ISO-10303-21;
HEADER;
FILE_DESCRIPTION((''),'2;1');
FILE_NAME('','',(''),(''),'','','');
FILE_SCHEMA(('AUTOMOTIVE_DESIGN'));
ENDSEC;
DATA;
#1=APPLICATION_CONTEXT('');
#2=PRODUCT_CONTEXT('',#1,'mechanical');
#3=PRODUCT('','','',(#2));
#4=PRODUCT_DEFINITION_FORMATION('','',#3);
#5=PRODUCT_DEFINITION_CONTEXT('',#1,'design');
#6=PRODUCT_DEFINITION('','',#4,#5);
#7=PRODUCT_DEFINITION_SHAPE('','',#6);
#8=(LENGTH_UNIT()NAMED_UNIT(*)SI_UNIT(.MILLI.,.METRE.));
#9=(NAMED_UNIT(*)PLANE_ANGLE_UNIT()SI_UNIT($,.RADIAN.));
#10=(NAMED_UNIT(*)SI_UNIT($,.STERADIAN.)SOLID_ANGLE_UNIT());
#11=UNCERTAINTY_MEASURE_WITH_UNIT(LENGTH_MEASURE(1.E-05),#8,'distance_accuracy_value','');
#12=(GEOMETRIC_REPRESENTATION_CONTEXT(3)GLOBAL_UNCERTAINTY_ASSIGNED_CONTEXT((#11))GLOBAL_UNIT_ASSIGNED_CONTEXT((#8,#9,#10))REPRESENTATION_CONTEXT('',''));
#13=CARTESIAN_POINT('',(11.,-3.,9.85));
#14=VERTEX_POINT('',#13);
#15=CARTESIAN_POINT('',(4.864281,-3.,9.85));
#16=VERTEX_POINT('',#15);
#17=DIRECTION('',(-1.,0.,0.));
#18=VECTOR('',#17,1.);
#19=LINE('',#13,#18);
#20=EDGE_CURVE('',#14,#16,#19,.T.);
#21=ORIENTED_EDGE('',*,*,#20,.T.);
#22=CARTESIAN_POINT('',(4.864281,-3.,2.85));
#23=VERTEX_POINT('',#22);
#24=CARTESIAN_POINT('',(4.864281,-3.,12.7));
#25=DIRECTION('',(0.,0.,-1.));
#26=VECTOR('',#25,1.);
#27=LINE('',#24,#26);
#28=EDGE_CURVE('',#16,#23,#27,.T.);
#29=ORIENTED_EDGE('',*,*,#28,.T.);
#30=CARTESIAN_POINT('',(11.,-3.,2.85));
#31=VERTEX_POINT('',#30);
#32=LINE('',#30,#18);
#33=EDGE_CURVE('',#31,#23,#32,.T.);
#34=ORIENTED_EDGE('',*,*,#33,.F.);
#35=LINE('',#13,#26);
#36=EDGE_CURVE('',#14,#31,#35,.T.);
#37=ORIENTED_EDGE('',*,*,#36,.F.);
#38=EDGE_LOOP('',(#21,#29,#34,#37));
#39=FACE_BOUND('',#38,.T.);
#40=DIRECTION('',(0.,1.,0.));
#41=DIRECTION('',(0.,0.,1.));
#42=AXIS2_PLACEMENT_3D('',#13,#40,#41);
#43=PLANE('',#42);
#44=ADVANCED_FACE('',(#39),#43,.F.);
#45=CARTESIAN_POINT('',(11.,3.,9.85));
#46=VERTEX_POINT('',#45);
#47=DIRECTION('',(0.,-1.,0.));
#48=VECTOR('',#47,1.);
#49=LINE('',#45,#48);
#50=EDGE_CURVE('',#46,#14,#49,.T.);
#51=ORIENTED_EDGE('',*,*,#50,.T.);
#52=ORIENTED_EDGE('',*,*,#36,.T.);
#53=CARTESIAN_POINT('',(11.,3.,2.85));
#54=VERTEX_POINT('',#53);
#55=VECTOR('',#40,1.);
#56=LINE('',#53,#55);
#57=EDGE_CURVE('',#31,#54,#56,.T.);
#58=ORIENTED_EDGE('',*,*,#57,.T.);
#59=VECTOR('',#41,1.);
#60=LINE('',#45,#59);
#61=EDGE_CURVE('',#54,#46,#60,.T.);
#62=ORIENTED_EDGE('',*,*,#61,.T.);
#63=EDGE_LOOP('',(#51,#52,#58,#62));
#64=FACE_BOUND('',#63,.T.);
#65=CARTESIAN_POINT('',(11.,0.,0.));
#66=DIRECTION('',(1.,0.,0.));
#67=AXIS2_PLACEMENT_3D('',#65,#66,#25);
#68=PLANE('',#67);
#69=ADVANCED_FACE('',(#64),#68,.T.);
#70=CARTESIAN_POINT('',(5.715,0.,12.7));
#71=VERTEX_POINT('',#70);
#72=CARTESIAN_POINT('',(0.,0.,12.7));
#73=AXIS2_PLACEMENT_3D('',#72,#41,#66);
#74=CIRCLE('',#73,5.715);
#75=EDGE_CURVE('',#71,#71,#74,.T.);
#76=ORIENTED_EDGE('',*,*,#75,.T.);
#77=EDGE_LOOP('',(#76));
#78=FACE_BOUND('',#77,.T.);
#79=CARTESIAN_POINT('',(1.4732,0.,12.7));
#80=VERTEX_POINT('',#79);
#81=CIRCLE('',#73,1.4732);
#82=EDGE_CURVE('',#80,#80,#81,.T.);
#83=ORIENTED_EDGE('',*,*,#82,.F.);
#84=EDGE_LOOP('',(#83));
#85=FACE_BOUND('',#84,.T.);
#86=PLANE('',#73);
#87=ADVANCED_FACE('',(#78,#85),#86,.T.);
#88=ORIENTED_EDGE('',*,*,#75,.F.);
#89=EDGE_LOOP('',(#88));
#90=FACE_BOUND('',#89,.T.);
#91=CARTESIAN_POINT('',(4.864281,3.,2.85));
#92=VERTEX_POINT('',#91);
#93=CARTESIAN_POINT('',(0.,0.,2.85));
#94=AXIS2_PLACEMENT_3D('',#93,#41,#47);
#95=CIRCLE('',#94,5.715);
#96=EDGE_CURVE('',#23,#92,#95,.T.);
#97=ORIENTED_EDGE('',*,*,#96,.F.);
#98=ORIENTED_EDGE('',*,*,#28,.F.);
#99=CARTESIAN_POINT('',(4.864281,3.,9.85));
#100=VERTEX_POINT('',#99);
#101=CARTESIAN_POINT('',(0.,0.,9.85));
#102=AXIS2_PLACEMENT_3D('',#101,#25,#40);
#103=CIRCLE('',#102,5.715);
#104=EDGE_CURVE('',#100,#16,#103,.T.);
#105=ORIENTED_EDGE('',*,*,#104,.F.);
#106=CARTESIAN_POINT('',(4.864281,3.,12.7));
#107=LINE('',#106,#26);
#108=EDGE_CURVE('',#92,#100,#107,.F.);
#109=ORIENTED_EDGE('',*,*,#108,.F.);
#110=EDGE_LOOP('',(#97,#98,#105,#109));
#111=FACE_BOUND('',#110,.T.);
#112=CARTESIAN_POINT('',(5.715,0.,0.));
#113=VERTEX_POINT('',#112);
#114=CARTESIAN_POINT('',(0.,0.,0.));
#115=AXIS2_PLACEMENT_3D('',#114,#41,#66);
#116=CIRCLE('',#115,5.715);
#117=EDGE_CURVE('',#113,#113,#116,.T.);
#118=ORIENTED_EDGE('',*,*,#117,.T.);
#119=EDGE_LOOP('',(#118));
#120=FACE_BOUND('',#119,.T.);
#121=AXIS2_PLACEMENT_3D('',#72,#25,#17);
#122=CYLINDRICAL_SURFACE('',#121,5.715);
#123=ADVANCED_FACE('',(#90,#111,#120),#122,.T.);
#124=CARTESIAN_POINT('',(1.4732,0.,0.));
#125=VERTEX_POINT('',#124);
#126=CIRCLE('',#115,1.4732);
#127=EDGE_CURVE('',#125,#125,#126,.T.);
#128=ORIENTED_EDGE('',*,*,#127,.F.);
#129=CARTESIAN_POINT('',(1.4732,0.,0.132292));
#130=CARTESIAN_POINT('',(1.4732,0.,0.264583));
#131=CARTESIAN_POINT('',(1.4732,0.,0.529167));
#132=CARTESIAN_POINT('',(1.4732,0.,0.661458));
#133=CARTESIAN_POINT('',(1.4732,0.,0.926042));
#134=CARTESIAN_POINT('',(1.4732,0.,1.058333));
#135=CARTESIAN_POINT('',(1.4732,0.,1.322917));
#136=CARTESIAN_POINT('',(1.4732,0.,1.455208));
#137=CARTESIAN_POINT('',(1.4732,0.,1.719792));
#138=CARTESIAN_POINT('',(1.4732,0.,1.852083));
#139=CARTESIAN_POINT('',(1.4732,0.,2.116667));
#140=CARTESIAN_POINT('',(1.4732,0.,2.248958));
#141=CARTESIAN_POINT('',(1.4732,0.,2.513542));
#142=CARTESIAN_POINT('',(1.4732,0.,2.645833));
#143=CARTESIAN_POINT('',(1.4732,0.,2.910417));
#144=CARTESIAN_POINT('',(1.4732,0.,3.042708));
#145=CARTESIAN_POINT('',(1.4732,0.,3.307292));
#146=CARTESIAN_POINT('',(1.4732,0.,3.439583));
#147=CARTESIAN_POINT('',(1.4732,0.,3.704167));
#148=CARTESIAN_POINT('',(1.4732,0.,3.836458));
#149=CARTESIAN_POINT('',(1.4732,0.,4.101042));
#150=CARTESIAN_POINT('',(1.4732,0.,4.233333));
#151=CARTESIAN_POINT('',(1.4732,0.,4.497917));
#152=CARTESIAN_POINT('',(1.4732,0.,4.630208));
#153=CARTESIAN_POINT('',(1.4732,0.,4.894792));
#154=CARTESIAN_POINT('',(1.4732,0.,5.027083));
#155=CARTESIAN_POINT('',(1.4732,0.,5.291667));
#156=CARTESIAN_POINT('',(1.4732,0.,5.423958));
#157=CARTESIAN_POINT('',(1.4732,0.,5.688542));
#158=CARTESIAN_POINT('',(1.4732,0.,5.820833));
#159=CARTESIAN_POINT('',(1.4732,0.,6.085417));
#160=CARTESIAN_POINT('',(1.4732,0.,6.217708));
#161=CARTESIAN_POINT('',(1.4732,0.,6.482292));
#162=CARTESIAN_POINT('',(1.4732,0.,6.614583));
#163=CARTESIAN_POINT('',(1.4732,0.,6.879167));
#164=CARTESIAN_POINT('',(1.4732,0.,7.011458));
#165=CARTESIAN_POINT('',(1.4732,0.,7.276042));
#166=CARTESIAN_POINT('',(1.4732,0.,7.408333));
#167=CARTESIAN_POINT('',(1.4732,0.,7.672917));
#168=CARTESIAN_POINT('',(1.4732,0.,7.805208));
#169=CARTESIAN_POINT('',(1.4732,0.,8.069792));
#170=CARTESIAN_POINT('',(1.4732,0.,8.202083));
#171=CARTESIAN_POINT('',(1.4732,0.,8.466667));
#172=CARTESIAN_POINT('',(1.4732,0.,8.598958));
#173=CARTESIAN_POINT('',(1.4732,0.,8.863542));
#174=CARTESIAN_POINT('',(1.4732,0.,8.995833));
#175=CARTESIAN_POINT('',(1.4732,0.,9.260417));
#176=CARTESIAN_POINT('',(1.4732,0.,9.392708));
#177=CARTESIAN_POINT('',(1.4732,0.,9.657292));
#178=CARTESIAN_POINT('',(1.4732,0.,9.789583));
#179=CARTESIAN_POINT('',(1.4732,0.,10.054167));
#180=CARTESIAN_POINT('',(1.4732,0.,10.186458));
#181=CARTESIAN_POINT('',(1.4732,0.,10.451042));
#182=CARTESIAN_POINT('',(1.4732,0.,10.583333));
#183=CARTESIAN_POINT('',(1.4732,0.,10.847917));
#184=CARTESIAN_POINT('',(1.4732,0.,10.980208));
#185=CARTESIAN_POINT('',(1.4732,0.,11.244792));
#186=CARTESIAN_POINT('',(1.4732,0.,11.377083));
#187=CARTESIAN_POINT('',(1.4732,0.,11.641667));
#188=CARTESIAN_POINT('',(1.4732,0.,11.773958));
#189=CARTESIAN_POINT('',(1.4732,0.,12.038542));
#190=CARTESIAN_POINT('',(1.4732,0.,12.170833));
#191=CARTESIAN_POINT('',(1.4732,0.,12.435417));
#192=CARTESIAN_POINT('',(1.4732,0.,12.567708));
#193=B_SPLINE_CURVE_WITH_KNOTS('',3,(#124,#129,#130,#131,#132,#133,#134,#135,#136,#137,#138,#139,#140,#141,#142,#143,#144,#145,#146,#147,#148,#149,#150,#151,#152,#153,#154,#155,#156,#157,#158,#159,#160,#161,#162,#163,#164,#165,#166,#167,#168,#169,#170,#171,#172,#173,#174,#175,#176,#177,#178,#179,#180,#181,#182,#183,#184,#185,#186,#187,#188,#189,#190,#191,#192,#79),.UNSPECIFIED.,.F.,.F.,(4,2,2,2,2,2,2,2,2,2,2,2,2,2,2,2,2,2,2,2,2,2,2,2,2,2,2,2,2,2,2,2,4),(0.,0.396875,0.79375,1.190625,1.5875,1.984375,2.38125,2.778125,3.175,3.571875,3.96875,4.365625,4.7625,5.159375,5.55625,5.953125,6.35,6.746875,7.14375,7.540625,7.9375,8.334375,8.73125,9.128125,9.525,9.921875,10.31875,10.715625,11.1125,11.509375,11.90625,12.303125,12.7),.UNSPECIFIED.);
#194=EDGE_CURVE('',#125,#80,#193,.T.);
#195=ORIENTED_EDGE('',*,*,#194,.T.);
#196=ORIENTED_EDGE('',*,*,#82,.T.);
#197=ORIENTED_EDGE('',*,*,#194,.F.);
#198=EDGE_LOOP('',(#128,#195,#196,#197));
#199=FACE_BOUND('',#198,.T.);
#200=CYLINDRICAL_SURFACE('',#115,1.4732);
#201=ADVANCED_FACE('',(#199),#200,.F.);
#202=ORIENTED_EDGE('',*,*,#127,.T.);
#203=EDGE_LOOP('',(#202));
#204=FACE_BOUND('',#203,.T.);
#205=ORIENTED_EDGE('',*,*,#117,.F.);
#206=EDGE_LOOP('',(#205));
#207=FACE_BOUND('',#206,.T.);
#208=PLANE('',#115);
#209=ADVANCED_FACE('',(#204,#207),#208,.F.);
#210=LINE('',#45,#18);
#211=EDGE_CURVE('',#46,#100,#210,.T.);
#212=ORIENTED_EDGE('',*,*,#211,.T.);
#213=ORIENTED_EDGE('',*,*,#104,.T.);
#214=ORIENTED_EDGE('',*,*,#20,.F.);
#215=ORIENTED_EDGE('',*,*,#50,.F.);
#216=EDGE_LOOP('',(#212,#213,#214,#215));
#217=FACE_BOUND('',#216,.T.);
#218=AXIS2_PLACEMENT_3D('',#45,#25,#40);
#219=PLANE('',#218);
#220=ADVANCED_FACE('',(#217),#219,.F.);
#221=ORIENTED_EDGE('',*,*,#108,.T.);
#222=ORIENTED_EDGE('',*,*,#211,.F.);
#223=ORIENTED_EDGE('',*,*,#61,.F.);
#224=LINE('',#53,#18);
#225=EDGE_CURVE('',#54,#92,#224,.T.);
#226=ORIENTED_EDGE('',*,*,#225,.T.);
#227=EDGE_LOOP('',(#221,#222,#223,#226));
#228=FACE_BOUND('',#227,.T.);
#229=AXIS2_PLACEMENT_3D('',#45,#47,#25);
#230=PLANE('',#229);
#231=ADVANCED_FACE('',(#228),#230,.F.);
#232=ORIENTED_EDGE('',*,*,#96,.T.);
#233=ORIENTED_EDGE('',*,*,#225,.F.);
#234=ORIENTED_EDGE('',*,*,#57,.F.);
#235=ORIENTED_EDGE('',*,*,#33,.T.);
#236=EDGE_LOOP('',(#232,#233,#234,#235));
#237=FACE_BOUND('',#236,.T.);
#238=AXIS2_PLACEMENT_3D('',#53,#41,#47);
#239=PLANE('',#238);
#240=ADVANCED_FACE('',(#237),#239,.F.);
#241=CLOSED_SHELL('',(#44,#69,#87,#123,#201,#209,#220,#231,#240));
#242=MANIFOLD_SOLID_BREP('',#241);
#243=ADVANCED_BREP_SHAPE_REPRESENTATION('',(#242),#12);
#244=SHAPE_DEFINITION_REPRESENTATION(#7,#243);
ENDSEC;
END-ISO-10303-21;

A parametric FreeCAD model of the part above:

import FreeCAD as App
import Part
import Sketcher

V = App.Vector
Q = App.Units.Quantity


def add_polygon(sketch, points):
    """Adds a closed chain of lines whose ends are joined by coincident constraints."""
    first, n = sketch.GeometryCount, len(points)
    for a, b in zip(points, points[1:] + points[:1]):
        sketch.addGeometry(Part.LineSegment(App.Vector(*a, 0), App.Vector(*b, 0)), False)
    for i in range(n):
        sketch.addConstraint(Sketcher.Constraint("Coincident", first + i, 2, first + (i + 1) % n, 1))

doc = App.newDocument("Part")
body = doc.addObject("PartDesign::Body", "Body")

# Sketch on XY plane
sketch1 = body.newObject("Sketcher::SketchObject", "Sketch")
sketch1.AttachmentSupport = (doc.getObject("XY_Plane"), [""])
sketch1.MapMode = "FlatFace"
sketch1.addGeometry(Part.Circle(V(0, 0, 0), V(0, 0, 1), 6), False)
sketch1.addConstraint([
    Sketcher.Constraint("Coincident", 0, 3, -1, 1),
    Sketcher.Constraint("Diameter", 0, Q("0.45 in")),
])
pad1 = body.newObject("PartDesign::Pad", "Pad")
pad1.Profile = sketch1
pad1.Length = Q("0.5 in")

# Sketch on XY plane
sketch2 = body.newObject("Sketcher::SketchObject", "Sketch001")
sketch2.AttachmentSupport = (doc.getObject("XY_Plane"), [""])
sketch2.MapMode = "FlatFace"
sketch2.AttachmentOffset = App.Placement(V(0, 0, 0.5 * 25.4), App.Rotation())
sketch2.addGeometry(Part.Circle(V(0, 0, 0), V(0, 0, 1), 1.5), False)
sketch2.addConstraint([
    Sketcher.Constraint("Coincident", 0, 3, -1, 1),
    Sketcher.Constraint("Diameter", 0, Q("0.116 in")),
])
pocket1 = body.newObject("PartDesign::Pocket", "Pocket")
pocket1.Profile = sketch2
pocket1.Type = "ThroughAll"

# Sketch on YZ plane
sketch3 = body.newObject("Sketcher::SketchObject", "Sketch002")
sketch3.AttachmentSupport = (doc.getObject("YZ_Plane"), [""])
sketch3.MapMode = "FlatFace"
sketch3.AttachmentOffset = App.Placement(V(0, 0, 4), App.Rotation())
add_polygon(sketch3, [(3, 10), (-3, 10), (-3, 3), (3, 3)])  # lines 0-3
sketch3.addConstraint([
    Sketcher.Constraint("Horizontal", 0),
    Sketcher.Constraint("Vertical", 1),
    Sketcher.Constraint("Horizontal", 2),
    Sketcher.Constraint("Vertical", 3),
    Sketcher.Constraint("DistanceX", 0, 2, 0, 1, Q("6 mm")),
    Sketcher.Constraint("DistanceY", 1, 2, 1, 1, Q("7 mm")),
    Sketcher.Constraint("DistanceX", 0, 2, -1, 1, Q("3 mm")),
    Sketcher.Constraint("DistanceY", -1, 1, 0, 2, Q("9.85 mm")),
])
pad2 = body.newObject("PartDesign::Pad", "Pad001")
pad2.Profile = sketch3
pad2.Length = 7

doc.recompute()
